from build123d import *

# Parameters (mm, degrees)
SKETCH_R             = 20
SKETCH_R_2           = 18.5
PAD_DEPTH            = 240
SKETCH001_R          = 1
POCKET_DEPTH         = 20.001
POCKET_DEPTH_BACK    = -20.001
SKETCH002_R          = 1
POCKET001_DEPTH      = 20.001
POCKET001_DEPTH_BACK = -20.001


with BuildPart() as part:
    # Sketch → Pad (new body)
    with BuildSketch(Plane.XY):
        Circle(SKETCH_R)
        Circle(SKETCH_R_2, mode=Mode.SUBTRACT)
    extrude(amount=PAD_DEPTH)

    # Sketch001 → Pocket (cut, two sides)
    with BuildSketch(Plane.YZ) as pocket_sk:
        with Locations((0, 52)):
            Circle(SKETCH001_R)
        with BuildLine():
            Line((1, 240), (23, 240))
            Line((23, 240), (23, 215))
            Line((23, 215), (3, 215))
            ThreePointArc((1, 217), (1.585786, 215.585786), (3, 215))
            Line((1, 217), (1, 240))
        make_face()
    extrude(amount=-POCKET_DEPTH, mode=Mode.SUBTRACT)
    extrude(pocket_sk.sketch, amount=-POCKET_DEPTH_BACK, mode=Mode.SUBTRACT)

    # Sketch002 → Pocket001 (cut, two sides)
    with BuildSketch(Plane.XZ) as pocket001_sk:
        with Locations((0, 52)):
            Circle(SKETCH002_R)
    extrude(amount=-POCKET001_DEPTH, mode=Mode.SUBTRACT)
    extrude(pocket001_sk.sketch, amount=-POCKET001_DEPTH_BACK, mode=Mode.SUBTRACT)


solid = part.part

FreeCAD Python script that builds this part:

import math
import FreeCAD as App
import Part
import Sketcher

V = App.Vector
Q = App.Units.Quantity

doc = App.newDocument("Part")
body = doc.addObject("PartDesign::Body", "Body")

sketch1 = body.newObject("Sketcher::SketchObject", "Sketch")
sketch1.AttachmentSupport = (doc.getObject("XY_Plane"), [""])
sketch1.MapMode = "FlatFace"
sketch1.addGeometry(Part.Circle(V(0, 0, 0), V(0, 0, 1), 20), False)
sketch1.addGeometry(Part.Circle(V(0, 0, 0), V(0, 0, 1), 18), False)
sketch1.addConstraint(Sketcher.Constraint("Coincident", 0, 3, -1, 1))
sketch1.addConstraint(Sketcher.Constraint("Coincident", 1, 3, -1, 1))
sketch1.addConstraint(Sketcher.Constraint("Diameter", 0, Q("40 mm")))
sketch1.addConstraint(Sketcher.Constraint("Diameter", 1, Q("37 mm")))
pad1 = body.newObject("PartDesign::Pad", "Pad")
pad1.Profile = sketch1
pad1.Length = 240

sketch2 = body.newObject("Sketcher::SketchObject", "Sketch001")
sketch2.AttachmentSupport = (doc.getObject("YZ_Plane"), [""])
sketch2.MapMode = "FlatFace"
sketch2.addGeometry(Part.Circle(V(0, 52, 0), V(0, 0, 1), 1), False)
sketch2.addGeometry(Part.LineSegment(V(23, 240, 0), V(1, 240, 0)), False)
sketch2.addGeometry(Part.LineSegment(V(1, 240, 0), V(1, 217, 0)), False)
sketch2.addGeometry(Part.ArcOfCircle(Part.Circle(V(3, 217, 0), V(0, 0, 1), 2), math.radians(180), math.radians(270)), False)
sketch2.addGeometry(Part.LineSegment(V(3, 215, 0), V(23, 215, 0)), False)
sketch2.addGeometry(Part.LineSegment(V(23, 215, 0), V(23, 240, 0)), False)
sketch2.addConstraint(Sketcher.Constraint("Coincident", 1, 2, 2, 1))
sketch2.addConstraint(Sketcher.Constraint("Tangent", 2, 2, 3, 1))
sketch2.addConstraint(Sketcher.Constraint("Tangent", 3, 2, 4, 1))
sketch2.addConstraint(Sketcher.Constraint("Coincident", 4, 2, 5, 1))
sketch2.addConstraint(Sketcher.Constraint("Coincident", 5, 2, 1, 1))
sketch2.addConstraint(Sketcher.Constraint("Horizontal", 1))
sketch2.addConstraint(Sketcher.Constraint("Vertical", 2))
sketch2.addConstraint(Sketcher.Constraint("Horizontal", 4))
sketch2.addConstraint(Sketcher.Constraint("Vertical", 5))
sketch2.addConstraint(Sketcher.Constraint("PointOnObject", 0, 3, -2))
sketch2.addConstraint(Sketcher.Constraint("Diameter", 0, Q("2 mm")))
sketch2.addConstraint(Sketcher.Constraint("Radius", 3, Q("1.999999 mm")))
sketch2.addConstraint(Sketcher.Constraint("DistanceX", 1, 2, 1, 1, Q("22 mm")))
sketch2.addConstraint(Sketcher.Constraint("DistanceY", 2, 2, 2, 1, Q("23 mm")))
sketch2.addConstraint(Sketcher.Constraint("DistanceY", -1, 1, 0, 3, Q("52 mm")))
sketch2.addConstraint(Sketcher.Constraint("DistanceX", -1, 1, 3, 3, Q("2.999999 mm")))
sketch2.addConstraint(Sketcher.Constraint("DistanceY", -1, 1, 3, 3, Q("216.999999 mm")))
pocket1 = body.newObject("PartDesign::Pocket", "Pocket")
pocket1.Profile = sketch2
pocket1.Type = "ThroughAll"
pocket1.Midplane = True

sketch3 = body.newObject("Sketcher::SketchObject", "Sketch002")
sketch3.AttachmentSupport = (doc.getObject("XZ_Plane"), [""])
sketch3.MapMode = "FlatFace"
sketch3.addGeometry(Part.Circle(V(0, 52, 0), V(0, 0, 1), 1), False)
sketch3.addConstraint(Sketcher.Constraint("PointOnObject", 0, 3, -2))
sketch3.addConstraint(Sketcher.Constraint("Diameter", 0, Q("2 mm")))
sketch3.addConstraint(Sketcher.Constraint("DistanceY", -1, 1, 0, 3, Q("52 mm")))
pocket2 = body.newObject("PartDesign::Pocket", "Pocket001")
pocket2.Profile = sketch3
pocket2.Type = "ThroughAll"
pocket2.Midplane = True

doc.recompute()
